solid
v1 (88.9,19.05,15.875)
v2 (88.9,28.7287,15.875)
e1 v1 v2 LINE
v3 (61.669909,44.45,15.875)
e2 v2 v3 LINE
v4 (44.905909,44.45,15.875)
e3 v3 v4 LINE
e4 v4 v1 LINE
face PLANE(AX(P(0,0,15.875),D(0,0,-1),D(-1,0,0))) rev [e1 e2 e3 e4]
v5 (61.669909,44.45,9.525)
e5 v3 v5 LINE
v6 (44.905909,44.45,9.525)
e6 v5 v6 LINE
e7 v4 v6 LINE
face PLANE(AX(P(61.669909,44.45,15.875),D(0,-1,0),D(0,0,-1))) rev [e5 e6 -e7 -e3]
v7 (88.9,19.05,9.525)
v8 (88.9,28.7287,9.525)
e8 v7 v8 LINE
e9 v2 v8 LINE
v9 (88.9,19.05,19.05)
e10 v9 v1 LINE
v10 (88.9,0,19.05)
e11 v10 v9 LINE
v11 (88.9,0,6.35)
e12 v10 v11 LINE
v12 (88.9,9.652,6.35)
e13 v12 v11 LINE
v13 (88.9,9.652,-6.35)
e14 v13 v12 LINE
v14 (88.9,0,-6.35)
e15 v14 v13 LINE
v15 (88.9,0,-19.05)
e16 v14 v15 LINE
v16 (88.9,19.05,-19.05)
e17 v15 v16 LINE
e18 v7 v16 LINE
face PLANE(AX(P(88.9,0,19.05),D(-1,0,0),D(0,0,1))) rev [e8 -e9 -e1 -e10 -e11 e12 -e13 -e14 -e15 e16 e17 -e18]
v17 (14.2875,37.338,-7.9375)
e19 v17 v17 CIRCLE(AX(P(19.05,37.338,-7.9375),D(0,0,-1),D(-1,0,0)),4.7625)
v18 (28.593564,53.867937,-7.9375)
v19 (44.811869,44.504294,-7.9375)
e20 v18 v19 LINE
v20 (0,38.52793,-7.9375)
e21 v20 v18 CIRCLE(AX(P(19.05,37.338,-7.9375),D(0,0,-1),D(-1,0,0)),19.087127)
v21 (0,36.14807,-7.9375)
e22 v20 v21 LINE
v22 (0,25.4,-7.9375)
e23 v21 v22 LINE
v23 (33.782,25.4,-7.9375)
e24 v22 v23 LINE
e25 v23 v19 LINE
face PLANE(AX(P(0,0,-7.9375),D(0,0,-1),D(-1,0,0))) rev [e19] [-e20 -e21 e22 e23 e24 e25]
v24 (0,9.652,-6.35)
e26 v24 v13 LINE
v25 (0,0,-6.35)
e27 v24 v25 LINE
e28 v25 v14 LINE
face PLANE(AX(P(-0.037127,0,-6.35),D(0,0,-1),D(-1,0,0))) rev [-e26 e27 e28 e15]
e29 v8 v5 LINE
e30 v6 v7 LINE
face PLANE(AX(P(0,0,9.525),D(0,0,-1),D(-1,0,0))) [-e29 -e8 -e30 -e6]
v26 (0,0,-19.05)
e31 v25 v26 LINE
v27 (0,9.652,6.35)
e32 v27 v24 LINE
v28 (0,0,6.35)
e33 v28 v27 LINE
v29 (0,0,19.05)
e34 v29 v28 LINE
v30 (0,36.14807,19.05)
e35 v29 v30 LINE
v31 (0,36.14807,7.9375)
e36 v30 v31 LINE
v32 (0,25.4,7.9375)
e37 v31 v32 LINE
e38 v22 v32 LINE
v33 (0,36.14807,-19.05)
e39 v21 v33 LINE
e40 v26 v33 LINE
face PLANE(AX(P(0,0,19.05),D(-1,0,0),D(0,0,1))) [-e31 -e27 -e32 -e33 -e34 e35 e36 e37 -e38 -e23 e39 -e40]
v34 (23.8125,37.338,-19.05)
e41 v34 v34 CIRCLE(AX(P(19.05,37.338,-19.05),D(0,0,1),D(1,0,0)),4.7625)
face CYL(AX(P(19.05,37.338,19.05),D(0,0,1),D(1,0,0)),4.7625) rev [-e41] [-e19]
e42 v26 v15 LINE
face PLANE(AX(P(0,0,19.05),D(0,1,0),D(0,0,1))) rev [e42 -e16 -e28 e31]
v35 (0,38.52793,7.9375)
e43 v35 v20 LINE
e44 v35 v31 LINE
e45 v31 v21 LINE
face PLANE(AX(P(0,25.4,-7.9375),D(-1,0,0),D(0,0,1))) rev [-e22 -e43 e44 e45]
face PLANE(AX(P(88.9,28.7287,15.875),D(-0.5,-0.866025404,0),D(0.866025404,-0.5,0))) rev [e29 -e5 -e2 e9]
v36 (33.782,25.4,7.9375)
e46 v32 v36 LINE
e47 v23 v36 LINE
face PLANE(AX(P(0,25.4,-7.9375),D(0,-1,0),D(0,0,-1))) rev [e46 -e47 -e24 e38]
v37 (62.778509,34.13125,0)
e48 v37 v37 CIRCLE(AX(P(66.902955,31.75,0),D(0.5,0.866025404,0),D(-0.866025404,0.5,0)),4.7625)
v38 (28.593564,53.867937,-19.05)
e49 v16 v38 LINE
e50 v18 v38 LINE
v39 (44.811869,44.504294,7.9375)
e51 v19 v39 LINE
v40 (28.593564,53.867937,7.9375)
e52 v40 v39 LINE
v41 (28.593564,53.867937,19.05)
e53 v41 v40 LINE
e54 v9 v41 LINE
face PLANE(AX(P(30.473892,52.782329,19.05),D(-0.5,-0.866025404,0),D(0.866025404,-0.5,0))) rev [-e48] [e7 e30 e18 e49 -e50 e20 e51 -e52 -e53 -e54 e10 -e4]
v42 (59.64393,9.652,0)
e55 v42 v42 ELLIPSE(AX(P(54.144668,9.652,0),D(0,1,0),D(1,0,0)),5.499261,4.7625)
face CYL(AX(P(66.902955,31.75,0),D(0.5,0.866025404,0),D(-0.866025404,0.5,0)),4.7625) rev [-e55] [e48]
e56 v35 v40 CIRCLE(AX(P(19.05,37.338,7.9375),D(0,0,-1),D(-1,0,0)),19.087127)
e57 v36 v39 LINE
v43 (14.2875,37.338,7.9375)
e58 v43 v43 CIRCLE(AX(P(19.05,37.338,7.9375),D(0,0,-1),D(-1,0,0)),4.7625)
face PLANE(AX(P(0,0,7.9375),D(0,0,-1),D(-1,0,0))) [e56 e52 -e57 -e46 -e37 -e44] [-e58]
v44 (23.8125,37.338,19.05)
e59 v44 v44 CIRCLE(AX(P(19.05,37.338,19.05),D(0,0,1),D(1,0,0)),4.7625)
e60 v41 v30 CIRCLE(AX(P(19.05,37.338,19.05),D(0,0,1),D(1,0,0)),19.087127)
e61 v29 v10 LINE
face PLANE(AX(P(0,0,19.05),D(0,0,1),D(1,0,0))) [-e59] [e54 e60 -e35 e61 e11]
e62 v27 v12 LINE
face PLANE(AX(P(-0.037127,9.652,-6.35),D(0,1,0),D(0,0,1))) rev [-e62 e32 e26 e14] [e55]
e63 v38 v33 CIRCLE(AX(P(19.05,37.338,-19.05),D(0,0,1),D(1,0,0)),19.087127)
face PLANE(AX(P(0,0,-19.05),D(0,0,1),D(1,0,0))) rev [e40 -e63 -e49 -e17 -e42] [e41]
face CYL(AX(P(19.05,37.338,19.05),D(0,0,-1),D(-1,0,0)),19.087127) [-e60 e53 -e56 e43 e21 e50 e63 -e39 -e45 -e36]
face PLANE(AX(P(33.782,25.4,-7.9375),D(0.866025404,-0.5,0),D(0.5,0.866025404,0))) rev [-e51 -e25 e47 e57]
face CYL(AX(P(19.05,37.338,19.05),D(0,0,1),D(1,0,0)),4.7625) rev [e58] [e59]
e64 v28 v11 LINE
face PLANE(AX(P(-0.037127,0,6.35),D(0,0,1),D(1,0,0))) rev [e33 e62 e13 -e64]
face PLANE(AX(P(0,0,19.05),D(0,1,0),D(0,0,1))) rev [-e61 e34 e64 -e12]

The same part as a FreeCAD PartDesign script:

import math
import FreeCAD as App
import Part
import Sketcher

V = App.Vector
Q = App.Units.Quantity

doc = App.newDocument("Part")
params = doc.addObject("Spreadsheet::Sheet", "Params")
for row, (alias, value) in enumerate([
    ("sketch1_width", "3.5 in"),
    ("sketch1_height", "0.75 in"),
    ("pad1_length", "1.5 in"),
    ("sketch2_height", "0.5 in"),
    ("sketch2_width", "0.38 in"),
    ("sketch3_length", "2 in"),
    ("sketch3_width", "0.66 in"),
    ("pad2_length", "0.25 in"),
    ("sketch4_width", "1.33 in"),
    ("pocket2_length", "0.625 in"),
    ("sketch5_diameter", "0.375 in"),
    ("hole_diameter", "0.375 in"),
    ("sketch6_diameter", "0.375 in"),
    ("hole2_diameter", "0.375 in"),
], start=1):
    params.set(f"A{row}", alias)
    params.set(f"B{row}", "=" + value)
    params.setAlias(f"B{row}", alias)

body = doc.addObject("PartDesign::Body", "Body")

# Sketch on XY plane
sketch1 = body.newObject("Sketcher::SketchObject", "Sketch")
sketch1.AttachmentSupport = (doc.getObject("XY_Plane"), [""])
sketch1.MapMode = "FlatFace"
sketch1.addGeometry(Part.LineSegment(V(0, 36, 0), V(0, 0, 0)), False)
sketch1.addGeometry(Part.LineSegment(V(0, 0, 0), V(89, 0, 0)), False)
sketch1.addGeometry(Part.LineSegment(V(89, 0, 0), V(89, 19, 0)), False)
sketch1.addGeometry(Part.LineSegment(V(89, 19, 0), V(29, 54, 0)), False)
sketch1.addGeometry(Part.ArcOfCircle(Part.Circle(V(19, 37, 0), V(0, 0, 1), 19), math.radians(60), math.radians(184)), False)
sketch1.addConstraint(Sketcher.Constraint("Coincident", 0, 2, 1, 1))
sketch1.addConstraint(Sketcher.Constraint("Coincident", 1, 2, 2, 1))
sketch1.addConstraint(Sketcher.Constraint("Coincident", 2, 2, 3, 1))
sketch1.addConstraint(Sketcher.Constraint("Tangent", 3, 2, 4, 1))
sketch1.addConstraint(Sketcher.Constraint("Coincident", 4, 2, 0, 1))
sketch1.addConstraint(Sketcher.Constraint("Vertical", 0))
sketch1.addConstraint(Sketcher.Constraint("Horizontal", 1))
sketch1.addConstraint(Sketcher.Constraint("Vertical", 2))
sketch1.addConstraint(Sketcher.Constraint("Coincident", 0, 2, -1, 1))
sketch1.addConstraint(Sketcher.Constraint("DistanceX", 1, 1, 1, 2, Q("3.5 in")))
sketch1.addConstraint(Sketcher.Constraint("Angle", 3, Q("150 deg")))
sketch1.addConstraint(Sketcher.Constraint("DistanceY", 2, 1, 2, 2, Q("0.75 in")))
sketch1.addConstraint(Sketcher.Constraint("DistanceX", -1, 1, 4, 3, Q("0.75 in")))
sketch1.addConstraint(Sketcher.Constraint("DistanceY", -1, 1, 4, 3, Q("1.47 in")))
sketch1.setExpression("Constraints[9]", "Params.sketch1_width")
sketch1.setExpression("Constraints[11]", "Params.sketch1_height")
pad1 = body.newObject("PartDesign::Pad", "Pad")
pad1.Profile = sketch1
pad1.setExpression("Length", "Params.pad1_length")
pad1.Midplane = True

# Sketch on YZ plane
sketch2 = body.newObject("Sketcher::SketchObject", "Sketch001")
sketch2.AttachmentSupport = (doc.getObject("YZ_Plane"), [""])
sketch2.MapMode = "FlatFace"
sketch2.AttachmentOffset = App.Placement(V(0, 0, 3.5 * 25.4), App.Rotation())
sketch2.addGeometry(Part.LineSegment(V(10, 6, 0), V(0, 6, 0)), False)
sketch2.addGeometry(Part.LineSegment(V(0, 6, 0), V(0, -6, 0)), False)
sketch2.addGeometry(Part.LineSegment(V(0, -6, 0), V(10, -6, 0)), False)
sketch2.addGeometry(Part.LineSegment(V(10, -6, 0), V(10, 6, 0)), False)
sketch2.addConstraint(Sketcher.Constraint("Coincident", 0, 2, 1, 1))
sketch2.addConstraint(Sketcher.Constraint("Coincident", 1, 2, 2, 1))
sketch2.addConstraint(Sketcher.Constraint("Coincident", 2, 2, 3, 1))
sketch2.addConstraint(Sketcher.Constraint("Coincident", 3, 2, 0, 1))
sketch2.addConstraint(Sketcher.Constraint("Horizontal", 0))
sketch2.addConstraint(Sketcher.Constraint("Vertical", 1))
sketch2.addConstraint(Sketcher.Constraint("Horizontal", 2))
sketch2.addConstraint(Sketcher.Constraint("Vertical", 3))
sketch2.addConstraint(Sketcher.Constraint("Symmetric", 0, 2, 1, 2, -1, 1))
sketch2.addConstraint(Sketcher.Constraint("DistanceY", 1, 2, 1, 1, Q("0.5 in")))
sketch2.addConstraint(Sketcher.Constraint("DistanceX", 0, 2, 0, 1, Q("0.38 in")))
sketch2.setExpression("Constraints[9]", "Params.sketch2_height")
sketch2.setExpression("Constraints[10]", "Params.sketch2_width")
pocket1 = body.newObject("PartDesign::Pocket", "Pocket")
pocket1.Profile = sketch2
pocket1.Type = "ThroughAll"

# Sketch on XY plane
sketch3 = body.newObject("Sketcher::SketchObject", "Sketch002")
sketch3.AttachmentSupport = (doc.getObject("XY_Plane"), [""])
sketch3.MapMode = "FlatFace"
sketch3.AttachmentOffset = App.Placement(V(0, 0, 0.5 * 25.4), App.Rotation())
sketch3.addGeometry(Part.LineSegment(V(89, 29, 0), V(62, 44, 0)), False)
sketch3.addGeometry(Part.LineSegment(V(62, 44, 0), V(45, 44, 0)), False)
sketch3.addGeometry(Part.LineSegment(V(45, 44, 0), V(89, 19, 0)), False)
sketch3.addGeometry(Part.LineSegment(V(89, 19, 0), V(89, 29, 0)), False)
sketch3.addConstraint(Sketcher.Constraint("Coincident", 0, 2, 1, 1))
sketch3.addConstraint(Sketcher.Constraint("Coincident", 1, 2, 2, 1))
sketch3.addConstraint(Sketcher.Constraint("Coincident", 2, 2, 3, 1))
sketch3.addConstraint(Sketcher.Constraint("Coincident", 3, 2, 0, 1))
sketch3.addConstraint(Sketcher.Constraint("Horizontal", 1))
sketch3.addConstraint(Sketcher.Constraint("Vertical", 3))
sketch3.addConstraint(Sketcher.Constraint("Parallel", 0, 2))
sketch3.addConstraint(Sketcher.Constraint("Distance", 2, Q("2 in")))
sketch3.addConstraint(Sketcher.Constraint("Angle", 0, Q("150 deg")))
sketch3.addConstraint(Sketcher.Constraint("DistanceX", 1, 2, 1, 1, Q("0.66 in")))
sketch3.addConstraint(Sketcher.Constraint("DistanceX", -1, 1, 2, 2, Q("3.5 in")))
sketch3.addConstraint(Sketcher.Constraint("DistanceY", -1, 1, 0, 2, Q("1.75 in")))
sketch3.setExpression("Constraints[7]", "Params.sketch3_length")
sketch3.setExpression("Constraints[9]", "Params.sketch3_width")
pad2 = body.newObject("PartDesign::Pad", "Pad001")
pad2.Profile = sketch3
pad2.setExpression("Length", "Params.pad2_length")
pad2.Midplane = True

# Sketch on XY plane
sketch4 = body.newObject("Sketcher::SketchObject", "Sketch003")
sketch4.AttachmentSupport = (doc.getObject("XY_Plane"), [""])
sketch4.MapMode = "FlatFace"
sketch4.addGeometry(Part.LineSegment(V(0, 25, 0), V(34, 25, 0)), False)
sketch4.addGeometry(Part.LineSegment(V(34, 25, 0), V(52, 57, 0)), False)
sketch4.addGeometry(Part.LineSegment(V(52, 57, 0), V(0, 57, 0)), False)
sketch4.addGeometry(Part.LineSegment(V(0, 57, 0), V(0, 25, 0)), False)
sketch4.addConstraint(Sketcher.Constraint("Coincident", 0, 2, 1, 1))
sketch4.addConstraint(Sketcher.Constraint("Coincident", 1, 2, 2, 1))
sketch4.addConstraint(Sketcher.Constraint("Coincident", 2, 2, 3, 1))
sketch4.addConstraint(Sketcher.Constraint("Coincident", 3, 2, 0, 1))
sketch4.addConstraint(Sketcher.Constraint("Horizontal", 0))
sketch4.addConstraint(Sketcher.Constraint("Horizontal", 2))
sketch4.addConstraint(Sketcher.Constraint("Vertical", 3))
sketch4.addConstraint(Sketcher.Constraint("PointOnObject", 2, 2, -2))
sketch4.addConstraint(Sketcher.Constraint("DistanceY", -1, 1, 0, 2, Q("1 in")))
sketch4.addConstraint(Sketcher.Constraint("Angle", 1, Q("60 deg")))
sketch4.addConstraint(Sketcher.Constraint("DistanceX", 0, 1, 0, 2, Q("1.33 in")))
sketch4.addConstraint(Sketcher.Constraint("Distance", 1, Q("36.29475 mm")))
sketch4.setExpression("Constraints[10]", "Params.sketch4_width")
pocket2 = body.newObject("PartDesign::Pocket", "Pocket001")
pocket2.Profile = sketch4
pocket2.setExpression("Length", "Params.pocket2_length")
pocket2.Midplane = True

# Sketch on an angled plane
sketch5 = body.newObject("Sketcher::SketchObject", "Sketch004")
sketch5.Placement = App.Placement(V(30.473892, 52.782329, 0), App.Rotation(V(0.866025404, -0.5, 0), V(0, 0, -1), V(0.5, 0.866025404, 0), "ZXY"))
sketch5.addGeometry(Part.Circle(V(42.1, 0, 0), V(0, 0, 1), 4.8), False)
sketch5.addConstraint(Sketcher.Constraint("PointOnObject", 0, 3, -1))
sketch5.addConstraint(Sketcher.Constraint("Diameter", 0, Q("0.375 in")))
sketch5.addConstraint(Sketcher.Constraint("DistanceX", -1, 1, 0, 3, Q("42.064658 mm")))
sketch5.setExpression("Constraints[1]", "Params.sketch5_diameter")
doc.recompute()
hole = body.newObject("PartDesign::Hole", "Hole")
hole.Profile = sketch5
hole.ThreadType = "None"
hole.setExpression("Diameter", "Params.hole_diameter")
hole.DepthType = "ThroughAll"

# Sketch on XY plane
sketch6 = body.newObject("Sketcher::SketchObject", "Sketch005")
sketch6.AttachmentSupport = (doc.getObject("XY_Plane"), [""])
sketch6.MapMode = "FlatFace"
sketch6.AttachmentOffset = App.Placement(V(0, 0, 0.75 * 25.4), App.Rotation())
sketch6.addGeometry(Part.Circle(V(19.1, 37.3, 0), V(0, 0, 1), 4.8), False)
sketch6.addConstraint(Sketcher.Constraint("Diameter", 0, Q("0.375 in")))
sketch6.addConstraint(Sketcher.Constraint("DistanceX", -1, 1, 0, 3, Q("0.75 in")))
sketch6.addConstraint(Sketcher.Constraint("DistanceY", -1, 1, 0, 3, Q("1.47 in")))
sketch6.setExpression("Constraints[0]", "Params.sketch6_diameter")
doc.recompute()
hole2 = body.newObject("PartDesign::Hole", "Hole001")
hole2.Profile = sketch6
hole2.ThreadType = "None"
hole2.setExpression("Diameter", "Params.hole2_diameter")
hole2.DepthType = "ThroughAll"

doc.recompute()
